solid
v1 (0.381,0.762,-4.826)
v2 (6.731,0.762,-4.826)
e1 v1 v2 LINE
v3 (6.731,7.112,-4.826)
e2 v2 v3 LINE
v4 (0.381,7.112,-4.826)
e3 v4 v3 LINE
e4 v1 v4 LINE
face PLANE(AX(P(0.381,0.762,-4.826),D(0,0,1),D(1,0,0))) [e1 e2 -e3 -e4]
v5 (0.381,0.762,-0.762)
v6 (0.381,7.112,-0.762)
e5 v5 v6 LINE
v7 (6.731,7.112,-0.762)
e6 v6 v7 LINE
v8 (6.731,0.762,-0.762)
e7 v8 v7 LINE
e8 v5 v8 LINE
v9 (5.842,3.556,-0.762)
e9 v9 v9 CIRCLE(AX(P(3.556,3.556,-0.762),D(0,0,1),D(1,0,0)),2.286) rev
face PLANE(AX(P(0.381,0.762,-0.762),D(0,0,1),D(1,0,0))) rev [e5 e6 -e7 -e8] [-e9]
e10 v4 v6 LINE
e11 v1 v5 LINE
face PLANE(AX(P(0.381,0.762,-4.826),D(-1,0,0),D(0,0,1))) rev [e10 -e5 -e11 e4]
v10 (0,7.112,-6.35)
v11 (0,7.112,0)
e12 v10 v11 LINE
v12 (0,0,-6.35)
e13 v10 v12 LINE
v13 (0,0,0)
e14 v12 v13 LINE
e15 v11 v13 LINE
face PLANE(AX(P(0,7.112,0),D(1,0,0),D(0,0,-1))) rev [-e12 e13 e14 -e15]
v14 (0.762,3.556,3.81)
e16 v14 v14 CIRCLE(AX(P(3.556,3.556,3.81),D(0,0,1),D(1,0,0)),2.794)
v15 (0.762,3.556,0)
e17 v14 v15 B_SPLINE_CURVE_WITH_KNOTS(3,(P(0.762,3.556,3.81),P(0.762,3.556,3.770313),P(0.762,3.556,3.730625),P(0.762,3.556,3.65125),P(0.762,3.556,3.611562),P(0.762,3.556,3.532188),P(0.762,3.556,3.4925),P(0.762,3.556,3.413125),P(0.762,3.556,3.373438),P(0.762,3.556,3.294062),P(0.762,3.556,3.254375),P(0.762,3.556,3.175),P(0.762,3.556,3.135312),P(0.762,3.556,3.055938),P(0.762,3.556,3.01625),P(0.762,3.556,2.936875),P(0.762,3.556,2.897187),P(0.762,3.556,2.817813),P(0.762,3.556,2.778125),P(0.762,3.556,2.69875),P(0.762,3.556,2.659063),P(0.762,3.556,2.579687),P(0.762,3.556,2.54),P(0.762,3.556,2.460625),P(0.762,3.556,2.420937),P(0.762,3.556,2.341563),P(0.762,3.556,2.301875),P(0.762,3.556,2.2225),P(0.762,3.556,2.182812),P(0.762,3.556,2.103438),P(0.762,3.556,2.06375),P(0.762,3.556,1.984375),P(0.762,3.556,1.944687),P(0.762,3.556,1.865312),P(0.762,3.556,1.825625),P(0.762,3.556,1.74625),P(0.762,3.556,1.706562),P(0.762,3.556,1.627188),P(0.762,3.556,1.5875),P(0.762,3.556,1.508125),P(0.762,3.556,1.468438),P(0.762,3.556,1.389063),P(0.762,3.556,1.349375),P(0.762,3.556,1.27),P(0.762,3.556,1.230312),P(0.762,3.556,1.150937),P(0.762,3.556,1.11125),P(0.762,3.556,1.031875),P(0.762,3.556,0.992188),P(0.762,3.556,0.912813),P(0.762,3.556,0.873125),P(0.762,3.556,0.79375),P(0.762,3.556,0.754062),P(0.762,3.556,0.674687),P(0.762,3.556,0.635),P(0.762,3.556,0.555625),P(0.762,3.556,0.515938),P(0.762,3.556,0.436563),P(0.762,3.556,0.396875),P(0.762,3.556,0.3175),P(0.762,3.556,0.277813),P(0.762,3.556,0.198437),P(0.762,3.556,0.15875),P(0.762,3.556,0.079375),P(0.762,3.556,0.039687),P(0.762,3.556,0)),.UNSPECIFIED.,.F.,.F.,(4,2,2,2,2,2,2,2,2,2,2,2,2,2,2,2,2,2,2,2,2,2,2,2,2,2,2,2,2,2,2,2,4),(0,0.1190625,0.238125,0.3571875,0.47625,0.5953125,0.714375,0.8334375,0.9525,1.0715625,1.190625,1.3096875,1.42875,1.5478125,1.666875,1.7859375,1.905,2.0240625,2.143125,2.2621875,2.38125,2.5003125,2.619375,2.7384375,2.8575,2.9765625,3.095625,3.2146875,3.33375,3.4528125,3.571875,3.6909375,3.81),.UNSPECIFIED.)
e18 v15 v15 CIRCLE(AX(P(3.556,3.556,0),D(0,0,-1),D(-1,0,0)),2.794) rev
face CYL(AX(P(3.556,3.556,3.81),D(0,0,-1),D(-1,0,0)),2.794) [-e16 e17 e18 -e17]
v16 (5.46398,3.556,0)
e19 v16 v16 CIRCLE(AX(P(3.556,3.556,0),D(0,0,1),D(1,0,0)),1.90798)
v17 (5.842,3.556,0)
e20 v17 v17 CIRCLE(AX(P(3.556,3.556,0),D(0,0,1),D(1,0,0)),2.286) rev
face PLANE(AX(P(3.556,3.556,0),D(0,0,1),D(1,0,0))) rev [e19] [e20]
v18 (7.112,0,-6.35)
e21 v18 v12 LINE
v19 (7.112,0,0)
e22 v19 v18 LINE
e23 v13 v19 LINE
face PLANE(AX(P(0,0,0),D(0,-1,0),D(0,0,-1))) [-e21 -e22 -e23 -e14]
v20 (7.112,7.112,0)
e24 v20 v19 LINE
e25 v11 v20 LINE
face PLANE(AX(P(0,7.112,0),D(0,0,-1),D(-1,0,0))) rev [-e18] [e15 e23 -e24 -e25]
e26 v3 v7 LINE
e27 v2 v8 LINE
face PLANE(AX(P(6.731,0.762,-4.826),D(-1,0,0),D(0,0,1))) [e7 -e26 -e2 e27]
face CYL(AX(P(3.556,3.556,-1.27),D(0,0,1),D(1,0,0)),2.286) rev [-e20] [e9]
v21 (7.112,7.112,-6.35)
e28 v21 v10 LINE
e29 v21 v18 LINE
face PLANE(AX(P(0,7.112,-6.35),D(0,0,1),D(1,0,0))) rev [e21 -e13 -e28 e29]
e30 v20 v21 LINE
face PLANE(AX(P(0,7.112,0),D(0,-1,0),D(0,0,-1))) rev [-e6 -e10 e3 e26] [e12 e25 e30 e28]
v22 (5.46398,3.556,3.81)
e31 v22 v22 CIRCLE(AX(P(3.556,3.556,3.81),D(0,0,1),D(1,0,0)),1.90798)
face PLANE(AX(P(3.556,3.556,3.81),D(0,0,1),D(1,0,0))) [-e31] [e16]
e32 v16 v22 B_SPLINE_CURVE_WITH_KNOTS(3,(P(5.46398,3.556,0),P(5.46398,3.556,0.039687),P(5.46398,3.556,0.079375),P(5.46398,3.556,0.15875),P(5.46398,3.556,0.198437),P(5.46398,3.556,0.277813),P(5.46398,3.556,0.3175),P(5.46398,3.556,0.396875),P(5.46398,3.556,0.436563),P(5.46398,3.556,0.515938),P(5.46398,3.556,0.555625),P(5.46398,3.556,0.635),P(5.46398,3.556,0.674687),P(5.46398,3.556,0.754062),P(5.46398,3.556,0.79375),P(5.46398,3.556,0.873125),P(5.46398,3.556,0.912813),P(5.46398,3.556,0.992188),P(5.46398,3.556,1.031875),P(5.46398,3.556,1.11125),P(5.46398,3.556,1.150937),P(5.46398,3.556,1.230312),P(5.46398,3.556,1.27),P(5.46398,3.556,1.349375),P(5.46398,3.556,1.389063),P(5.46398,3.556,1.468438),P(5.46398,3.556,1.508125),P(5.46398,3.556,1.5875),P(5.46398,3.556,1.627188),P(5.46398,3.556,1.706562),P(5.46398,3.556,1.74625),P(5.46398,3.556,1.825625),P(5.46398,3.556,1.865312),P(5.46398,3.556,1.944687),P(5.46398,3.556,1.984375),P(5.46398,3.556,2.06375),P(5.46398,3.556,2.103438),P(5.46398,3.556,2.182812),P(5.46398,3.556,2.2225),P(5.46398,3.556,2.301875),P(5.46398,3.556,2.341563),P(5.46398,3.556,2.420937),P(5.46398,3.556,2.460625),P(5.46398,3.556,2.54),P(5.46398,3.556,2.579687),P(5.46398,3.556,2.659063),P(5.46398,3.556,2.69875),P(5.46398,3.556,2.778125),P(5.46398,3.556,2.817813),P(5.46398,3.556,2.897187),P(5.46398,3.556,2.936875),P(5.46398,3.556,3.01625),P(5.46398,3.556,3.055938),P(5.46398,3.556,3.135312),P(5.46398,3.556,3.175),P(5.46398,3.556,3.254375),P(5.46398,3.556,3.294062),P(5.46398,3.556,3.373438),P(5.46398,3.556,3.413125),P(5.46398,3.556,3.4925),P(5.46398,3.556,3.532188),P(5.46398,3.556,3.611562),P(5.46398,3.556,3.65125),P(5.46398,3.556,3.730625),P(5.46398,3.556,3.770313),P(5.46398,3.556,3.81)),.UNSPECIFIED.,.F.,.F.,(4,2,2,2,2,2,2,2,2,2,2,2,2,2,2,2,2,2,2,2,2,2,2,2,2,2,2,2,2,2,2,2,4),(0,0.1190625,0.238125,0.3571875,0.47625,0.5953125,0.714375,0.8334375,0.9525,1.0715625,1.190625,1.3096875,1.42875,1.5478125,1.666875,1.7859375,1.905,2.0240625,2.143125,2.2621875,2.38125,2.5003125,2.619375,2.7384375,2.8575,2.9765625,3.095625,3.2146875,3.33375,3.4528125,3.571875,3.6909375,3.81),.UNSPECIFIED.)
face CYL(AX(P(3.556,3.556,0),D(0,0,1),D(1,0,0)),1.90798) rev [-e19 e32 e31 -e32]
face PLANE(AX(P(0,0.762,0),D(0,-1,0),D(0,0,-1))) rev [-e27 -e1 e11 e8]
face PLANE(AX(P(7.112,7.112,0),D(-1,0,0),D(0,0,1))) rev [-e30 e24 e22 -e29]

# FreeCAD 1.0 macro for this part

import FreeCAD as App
import Part
import Sketcher
Q = App.Units.Quantity

doc = App.newDocument("Part")
body = doc.addObject("PartDesign::Body", "Body")

sketch1 = body.newObject("Sketcher::SketchObject", "Sketch")
sketch1.AttachmentSupport = (doc.getObject("XZ_Plane"), [""])
sketch1.MapMode = "FlatFace"
sketch1.addGeometry(Part.LineSegment(App.Vector(0, -6, 0), App.Vector(0, 0, 0)), False)
sketch1.addGeometry(Part.LineSegment(App.Vector(0, 0, 0), App.Vector(7, 0, 0)), False)
sketch1.addGeometry(Part.LineSegment(App.Vector(7, 0, 0), App.Vector(7, -6, 0)), False)
sketch1.addGeometry(Part.LineSegment(App.Vector(7, -6, 0), App.Vector(0, -6, 0)), False)
sketch1.addConstraint(Sketcher.Constraint("Coincident", 0, 2, 1, 1))
sketch1.addConstraint(Sketcher.Constraint("Coincident", 1, 2, 2, 1))
sketch1.addConstraint(Sketcher.Constraint("Coincident", 2, 2, 3, 1))
sketch1.addConstraint(Sketcher.Constraint("Coincident", 3, 2, 0, 1))
sketch1.addConstraint(Sketcher.Constraint("Vertical", 0))
sketch1.addConstraint(Sketcher.Constraint("Horizontal", 1))
sketch1.addConstraint(Sketcher.Constraint("Vertical", 2))
sketch1.addConstraint(Sketcher.Constraint("Horizontal", 3))
sketch1.addConstraint(Sketcher.Constraint("Coincident", 0, 2, -1, 1))
sketch1.addConstraint(Sketcher.Constraint("DistanceX", 1, 1, 1, 2, Q("0.28 in")))
sketch1.addConstraint(Sketcher.Constraint("DistanceY", 0, 1, 0, 2, Q("0.25 in")))
pad1 = body.newObject("PartDesign::Pad", "Pad")
pad1.Profile = sketch1
pad1.Length = Q("0.28 in")
pad1.Reversed = True

sketch2 = body.newObject("Sketcher::SketchObject", "Sketch001")
sketch2.AttachmentSupport = (doc.getObject("XY_Plane"), [""])
sketch2.MapMode = "FlatFace"
sketch2.addGeometry(Part.Circle(App.Vector(3.6, 3.6, 0), App.Vector(0, 0, 1), 2.3), False)
sketch2.addConstraint(Sketcher.Constraint("Diameter", 0, Q("0.18 in")))
sketch2.addConstraint(Sketcher.Constraint("DistanceX", -1, 1, 0, 3, Q("0.14 in")))
sketch2.addConstraint(Sketcher.Constraint("DistanceY", -1, 1, 0, 3, Q("0.14 in")))
pocket1 = body.newObject("PartDesign::Pocket", "Pocket")
pocket1.Profile = sketch2
pocket1.Length = Q("0.05 in")

sketch3 = body.newObject("Sketcher::SketchObject", "Sketch002")
sketch3.AttachmentSupport = (doc.getObject("XZ_Plane"), [""])
sketch3.MapMode = "FlatFace"
sketch3.AttachmentOffset = App.Placement(App.Vector(0, 0, -0.28 * 25.4), App.Rotation())
sketch3.addGeometry(Part.LineSegment(App.Vector(0.4, -4.8, 0), App.Vector(0.4, -0.8, 0)), False)
sketch3.addGeometry(Part.LineSegment(App.Vector(0.4, -0.8, 0), App.Vector(6.7, -0.8, 0)), False)
sketch3.addGeometry(Part.LineSegment(App.Vector(6.7, -0.8, 0), App.Vector(6.7, -4.8, 0)), False)
sketch3.addGeometry(Part.LineSegment(App.Vector(6.7, -4.8, 0), App.Vector(0.4, -4.8, 0)), False)
sketch3.addConstraint(Sketcher.Constraint("Coincident", 0, 2, 1, 1))
sketch3.addConstraint(Sketcher.Constraint("Coincident", 1, 2, 2, 1))
sketch3.addConstraint(Sketcher.Constraint("Coincident", 2, 2, 3, 1))
sketch3.addConstraint(Sketcher.Constraint("Coincident", 3, 2, 0, 1))
sketch3.addConstraint(Sketcher.Constraint("Vertical", 0))
sketch3.addConstraint(Sketcher.Constraint("Horizontal", 1))
sketch3.addConstraint(Sketcher.Constraint("Vertical", 2))
sketch3.addConstraint(Sketcher.Constraint("Horizontal", 3))
sketch3.addConstraint(Sketcher.Constraint("DistanceX", 1, 1, 1, 2, Q("0.25 in")))
sketch3.addConstraint(Sketcher.Constraint("DistanceY", 0, 1, 0, 2, Q("0.16 in")))
sketch3.addConstraint(Sketcher.Constraint("DistanceY", 0, 2, -1, 1, Q("0.03 in")))
sketch3.addConstraint(Sketcher.Constraint("DistanceX", -1, 1, 0, 2, Q("0.015 in")))
pocket2 = body.newObject("PartDesign::Pocket", "Pocket001")
pocket2.Profile = sketch3
pocket2.Length = Q("0.25 in")
pocket2.Reversed = True

sketch4 = body.newObject("Sketcher::SketchObject", "Sketch003")
sketch4.AttachmentSupport = (doc.getObject("XY_Plane"), [""])
sketch4.MapMode = "FlatFace"
sketch4.addGeometry(Part.Circle(App.Vector(3.6, 3.6, 0), App.Vector(0, 0, 1), 2.8), False)
sketch4.addConstraint(Sketcher.Constraint("Diameter", 0, Q("0.22 in")))
sketch4.addConstraint(Sketcher.Constraint("DistanceX", -1, 1, 0, 3, Q("0.14 in")))
sketch4.addConstraint(Sketcher.Constraint("DistanceY", -1, 1, 0, 3, Q("0.14 in")))
pad2 = body.newObject("PartDesign::Pad", "Pad001")
pad2.Profile = sketch4
pad2.Length = Q("0.15 in")

sketch5 = body.newObject("Sketcher::SketchObject", "Sketch004")
sketch5.AttachmentSupport = (doc.getObject("XY_Plane"), [""])
sketch5.MapMode = "FlatFace"
sketch5.AttachmentOffset = App.Placement(App.Vector(0, 0, 0.15 * 25.4), App.Rotation())
sketch5.addGeometry(Part.Circle(App.Vector(3.6, 3.6, 0), App.Vector(0, 0, 1), 1.9), False)
sketch5.addConstraint(Sketcher.Constraint("DistanceX", -1, 1, 0, 3, Q("0.14 in")))
sketch5.addConstraint(Sketcher.Constraint("DistanceY", -1, 1, 0, 3, Q("0.14 in")))
sketch5.addConstraint(Sketcher.Constraint("Diameter", 0, 3.81596))
pocket3 = body.newObject("PartDesign::Pocket", "Pocket002")
pocket3.Profile = sketch5
pocket3.Length = Q("0.15 in")

doc.recompute()
